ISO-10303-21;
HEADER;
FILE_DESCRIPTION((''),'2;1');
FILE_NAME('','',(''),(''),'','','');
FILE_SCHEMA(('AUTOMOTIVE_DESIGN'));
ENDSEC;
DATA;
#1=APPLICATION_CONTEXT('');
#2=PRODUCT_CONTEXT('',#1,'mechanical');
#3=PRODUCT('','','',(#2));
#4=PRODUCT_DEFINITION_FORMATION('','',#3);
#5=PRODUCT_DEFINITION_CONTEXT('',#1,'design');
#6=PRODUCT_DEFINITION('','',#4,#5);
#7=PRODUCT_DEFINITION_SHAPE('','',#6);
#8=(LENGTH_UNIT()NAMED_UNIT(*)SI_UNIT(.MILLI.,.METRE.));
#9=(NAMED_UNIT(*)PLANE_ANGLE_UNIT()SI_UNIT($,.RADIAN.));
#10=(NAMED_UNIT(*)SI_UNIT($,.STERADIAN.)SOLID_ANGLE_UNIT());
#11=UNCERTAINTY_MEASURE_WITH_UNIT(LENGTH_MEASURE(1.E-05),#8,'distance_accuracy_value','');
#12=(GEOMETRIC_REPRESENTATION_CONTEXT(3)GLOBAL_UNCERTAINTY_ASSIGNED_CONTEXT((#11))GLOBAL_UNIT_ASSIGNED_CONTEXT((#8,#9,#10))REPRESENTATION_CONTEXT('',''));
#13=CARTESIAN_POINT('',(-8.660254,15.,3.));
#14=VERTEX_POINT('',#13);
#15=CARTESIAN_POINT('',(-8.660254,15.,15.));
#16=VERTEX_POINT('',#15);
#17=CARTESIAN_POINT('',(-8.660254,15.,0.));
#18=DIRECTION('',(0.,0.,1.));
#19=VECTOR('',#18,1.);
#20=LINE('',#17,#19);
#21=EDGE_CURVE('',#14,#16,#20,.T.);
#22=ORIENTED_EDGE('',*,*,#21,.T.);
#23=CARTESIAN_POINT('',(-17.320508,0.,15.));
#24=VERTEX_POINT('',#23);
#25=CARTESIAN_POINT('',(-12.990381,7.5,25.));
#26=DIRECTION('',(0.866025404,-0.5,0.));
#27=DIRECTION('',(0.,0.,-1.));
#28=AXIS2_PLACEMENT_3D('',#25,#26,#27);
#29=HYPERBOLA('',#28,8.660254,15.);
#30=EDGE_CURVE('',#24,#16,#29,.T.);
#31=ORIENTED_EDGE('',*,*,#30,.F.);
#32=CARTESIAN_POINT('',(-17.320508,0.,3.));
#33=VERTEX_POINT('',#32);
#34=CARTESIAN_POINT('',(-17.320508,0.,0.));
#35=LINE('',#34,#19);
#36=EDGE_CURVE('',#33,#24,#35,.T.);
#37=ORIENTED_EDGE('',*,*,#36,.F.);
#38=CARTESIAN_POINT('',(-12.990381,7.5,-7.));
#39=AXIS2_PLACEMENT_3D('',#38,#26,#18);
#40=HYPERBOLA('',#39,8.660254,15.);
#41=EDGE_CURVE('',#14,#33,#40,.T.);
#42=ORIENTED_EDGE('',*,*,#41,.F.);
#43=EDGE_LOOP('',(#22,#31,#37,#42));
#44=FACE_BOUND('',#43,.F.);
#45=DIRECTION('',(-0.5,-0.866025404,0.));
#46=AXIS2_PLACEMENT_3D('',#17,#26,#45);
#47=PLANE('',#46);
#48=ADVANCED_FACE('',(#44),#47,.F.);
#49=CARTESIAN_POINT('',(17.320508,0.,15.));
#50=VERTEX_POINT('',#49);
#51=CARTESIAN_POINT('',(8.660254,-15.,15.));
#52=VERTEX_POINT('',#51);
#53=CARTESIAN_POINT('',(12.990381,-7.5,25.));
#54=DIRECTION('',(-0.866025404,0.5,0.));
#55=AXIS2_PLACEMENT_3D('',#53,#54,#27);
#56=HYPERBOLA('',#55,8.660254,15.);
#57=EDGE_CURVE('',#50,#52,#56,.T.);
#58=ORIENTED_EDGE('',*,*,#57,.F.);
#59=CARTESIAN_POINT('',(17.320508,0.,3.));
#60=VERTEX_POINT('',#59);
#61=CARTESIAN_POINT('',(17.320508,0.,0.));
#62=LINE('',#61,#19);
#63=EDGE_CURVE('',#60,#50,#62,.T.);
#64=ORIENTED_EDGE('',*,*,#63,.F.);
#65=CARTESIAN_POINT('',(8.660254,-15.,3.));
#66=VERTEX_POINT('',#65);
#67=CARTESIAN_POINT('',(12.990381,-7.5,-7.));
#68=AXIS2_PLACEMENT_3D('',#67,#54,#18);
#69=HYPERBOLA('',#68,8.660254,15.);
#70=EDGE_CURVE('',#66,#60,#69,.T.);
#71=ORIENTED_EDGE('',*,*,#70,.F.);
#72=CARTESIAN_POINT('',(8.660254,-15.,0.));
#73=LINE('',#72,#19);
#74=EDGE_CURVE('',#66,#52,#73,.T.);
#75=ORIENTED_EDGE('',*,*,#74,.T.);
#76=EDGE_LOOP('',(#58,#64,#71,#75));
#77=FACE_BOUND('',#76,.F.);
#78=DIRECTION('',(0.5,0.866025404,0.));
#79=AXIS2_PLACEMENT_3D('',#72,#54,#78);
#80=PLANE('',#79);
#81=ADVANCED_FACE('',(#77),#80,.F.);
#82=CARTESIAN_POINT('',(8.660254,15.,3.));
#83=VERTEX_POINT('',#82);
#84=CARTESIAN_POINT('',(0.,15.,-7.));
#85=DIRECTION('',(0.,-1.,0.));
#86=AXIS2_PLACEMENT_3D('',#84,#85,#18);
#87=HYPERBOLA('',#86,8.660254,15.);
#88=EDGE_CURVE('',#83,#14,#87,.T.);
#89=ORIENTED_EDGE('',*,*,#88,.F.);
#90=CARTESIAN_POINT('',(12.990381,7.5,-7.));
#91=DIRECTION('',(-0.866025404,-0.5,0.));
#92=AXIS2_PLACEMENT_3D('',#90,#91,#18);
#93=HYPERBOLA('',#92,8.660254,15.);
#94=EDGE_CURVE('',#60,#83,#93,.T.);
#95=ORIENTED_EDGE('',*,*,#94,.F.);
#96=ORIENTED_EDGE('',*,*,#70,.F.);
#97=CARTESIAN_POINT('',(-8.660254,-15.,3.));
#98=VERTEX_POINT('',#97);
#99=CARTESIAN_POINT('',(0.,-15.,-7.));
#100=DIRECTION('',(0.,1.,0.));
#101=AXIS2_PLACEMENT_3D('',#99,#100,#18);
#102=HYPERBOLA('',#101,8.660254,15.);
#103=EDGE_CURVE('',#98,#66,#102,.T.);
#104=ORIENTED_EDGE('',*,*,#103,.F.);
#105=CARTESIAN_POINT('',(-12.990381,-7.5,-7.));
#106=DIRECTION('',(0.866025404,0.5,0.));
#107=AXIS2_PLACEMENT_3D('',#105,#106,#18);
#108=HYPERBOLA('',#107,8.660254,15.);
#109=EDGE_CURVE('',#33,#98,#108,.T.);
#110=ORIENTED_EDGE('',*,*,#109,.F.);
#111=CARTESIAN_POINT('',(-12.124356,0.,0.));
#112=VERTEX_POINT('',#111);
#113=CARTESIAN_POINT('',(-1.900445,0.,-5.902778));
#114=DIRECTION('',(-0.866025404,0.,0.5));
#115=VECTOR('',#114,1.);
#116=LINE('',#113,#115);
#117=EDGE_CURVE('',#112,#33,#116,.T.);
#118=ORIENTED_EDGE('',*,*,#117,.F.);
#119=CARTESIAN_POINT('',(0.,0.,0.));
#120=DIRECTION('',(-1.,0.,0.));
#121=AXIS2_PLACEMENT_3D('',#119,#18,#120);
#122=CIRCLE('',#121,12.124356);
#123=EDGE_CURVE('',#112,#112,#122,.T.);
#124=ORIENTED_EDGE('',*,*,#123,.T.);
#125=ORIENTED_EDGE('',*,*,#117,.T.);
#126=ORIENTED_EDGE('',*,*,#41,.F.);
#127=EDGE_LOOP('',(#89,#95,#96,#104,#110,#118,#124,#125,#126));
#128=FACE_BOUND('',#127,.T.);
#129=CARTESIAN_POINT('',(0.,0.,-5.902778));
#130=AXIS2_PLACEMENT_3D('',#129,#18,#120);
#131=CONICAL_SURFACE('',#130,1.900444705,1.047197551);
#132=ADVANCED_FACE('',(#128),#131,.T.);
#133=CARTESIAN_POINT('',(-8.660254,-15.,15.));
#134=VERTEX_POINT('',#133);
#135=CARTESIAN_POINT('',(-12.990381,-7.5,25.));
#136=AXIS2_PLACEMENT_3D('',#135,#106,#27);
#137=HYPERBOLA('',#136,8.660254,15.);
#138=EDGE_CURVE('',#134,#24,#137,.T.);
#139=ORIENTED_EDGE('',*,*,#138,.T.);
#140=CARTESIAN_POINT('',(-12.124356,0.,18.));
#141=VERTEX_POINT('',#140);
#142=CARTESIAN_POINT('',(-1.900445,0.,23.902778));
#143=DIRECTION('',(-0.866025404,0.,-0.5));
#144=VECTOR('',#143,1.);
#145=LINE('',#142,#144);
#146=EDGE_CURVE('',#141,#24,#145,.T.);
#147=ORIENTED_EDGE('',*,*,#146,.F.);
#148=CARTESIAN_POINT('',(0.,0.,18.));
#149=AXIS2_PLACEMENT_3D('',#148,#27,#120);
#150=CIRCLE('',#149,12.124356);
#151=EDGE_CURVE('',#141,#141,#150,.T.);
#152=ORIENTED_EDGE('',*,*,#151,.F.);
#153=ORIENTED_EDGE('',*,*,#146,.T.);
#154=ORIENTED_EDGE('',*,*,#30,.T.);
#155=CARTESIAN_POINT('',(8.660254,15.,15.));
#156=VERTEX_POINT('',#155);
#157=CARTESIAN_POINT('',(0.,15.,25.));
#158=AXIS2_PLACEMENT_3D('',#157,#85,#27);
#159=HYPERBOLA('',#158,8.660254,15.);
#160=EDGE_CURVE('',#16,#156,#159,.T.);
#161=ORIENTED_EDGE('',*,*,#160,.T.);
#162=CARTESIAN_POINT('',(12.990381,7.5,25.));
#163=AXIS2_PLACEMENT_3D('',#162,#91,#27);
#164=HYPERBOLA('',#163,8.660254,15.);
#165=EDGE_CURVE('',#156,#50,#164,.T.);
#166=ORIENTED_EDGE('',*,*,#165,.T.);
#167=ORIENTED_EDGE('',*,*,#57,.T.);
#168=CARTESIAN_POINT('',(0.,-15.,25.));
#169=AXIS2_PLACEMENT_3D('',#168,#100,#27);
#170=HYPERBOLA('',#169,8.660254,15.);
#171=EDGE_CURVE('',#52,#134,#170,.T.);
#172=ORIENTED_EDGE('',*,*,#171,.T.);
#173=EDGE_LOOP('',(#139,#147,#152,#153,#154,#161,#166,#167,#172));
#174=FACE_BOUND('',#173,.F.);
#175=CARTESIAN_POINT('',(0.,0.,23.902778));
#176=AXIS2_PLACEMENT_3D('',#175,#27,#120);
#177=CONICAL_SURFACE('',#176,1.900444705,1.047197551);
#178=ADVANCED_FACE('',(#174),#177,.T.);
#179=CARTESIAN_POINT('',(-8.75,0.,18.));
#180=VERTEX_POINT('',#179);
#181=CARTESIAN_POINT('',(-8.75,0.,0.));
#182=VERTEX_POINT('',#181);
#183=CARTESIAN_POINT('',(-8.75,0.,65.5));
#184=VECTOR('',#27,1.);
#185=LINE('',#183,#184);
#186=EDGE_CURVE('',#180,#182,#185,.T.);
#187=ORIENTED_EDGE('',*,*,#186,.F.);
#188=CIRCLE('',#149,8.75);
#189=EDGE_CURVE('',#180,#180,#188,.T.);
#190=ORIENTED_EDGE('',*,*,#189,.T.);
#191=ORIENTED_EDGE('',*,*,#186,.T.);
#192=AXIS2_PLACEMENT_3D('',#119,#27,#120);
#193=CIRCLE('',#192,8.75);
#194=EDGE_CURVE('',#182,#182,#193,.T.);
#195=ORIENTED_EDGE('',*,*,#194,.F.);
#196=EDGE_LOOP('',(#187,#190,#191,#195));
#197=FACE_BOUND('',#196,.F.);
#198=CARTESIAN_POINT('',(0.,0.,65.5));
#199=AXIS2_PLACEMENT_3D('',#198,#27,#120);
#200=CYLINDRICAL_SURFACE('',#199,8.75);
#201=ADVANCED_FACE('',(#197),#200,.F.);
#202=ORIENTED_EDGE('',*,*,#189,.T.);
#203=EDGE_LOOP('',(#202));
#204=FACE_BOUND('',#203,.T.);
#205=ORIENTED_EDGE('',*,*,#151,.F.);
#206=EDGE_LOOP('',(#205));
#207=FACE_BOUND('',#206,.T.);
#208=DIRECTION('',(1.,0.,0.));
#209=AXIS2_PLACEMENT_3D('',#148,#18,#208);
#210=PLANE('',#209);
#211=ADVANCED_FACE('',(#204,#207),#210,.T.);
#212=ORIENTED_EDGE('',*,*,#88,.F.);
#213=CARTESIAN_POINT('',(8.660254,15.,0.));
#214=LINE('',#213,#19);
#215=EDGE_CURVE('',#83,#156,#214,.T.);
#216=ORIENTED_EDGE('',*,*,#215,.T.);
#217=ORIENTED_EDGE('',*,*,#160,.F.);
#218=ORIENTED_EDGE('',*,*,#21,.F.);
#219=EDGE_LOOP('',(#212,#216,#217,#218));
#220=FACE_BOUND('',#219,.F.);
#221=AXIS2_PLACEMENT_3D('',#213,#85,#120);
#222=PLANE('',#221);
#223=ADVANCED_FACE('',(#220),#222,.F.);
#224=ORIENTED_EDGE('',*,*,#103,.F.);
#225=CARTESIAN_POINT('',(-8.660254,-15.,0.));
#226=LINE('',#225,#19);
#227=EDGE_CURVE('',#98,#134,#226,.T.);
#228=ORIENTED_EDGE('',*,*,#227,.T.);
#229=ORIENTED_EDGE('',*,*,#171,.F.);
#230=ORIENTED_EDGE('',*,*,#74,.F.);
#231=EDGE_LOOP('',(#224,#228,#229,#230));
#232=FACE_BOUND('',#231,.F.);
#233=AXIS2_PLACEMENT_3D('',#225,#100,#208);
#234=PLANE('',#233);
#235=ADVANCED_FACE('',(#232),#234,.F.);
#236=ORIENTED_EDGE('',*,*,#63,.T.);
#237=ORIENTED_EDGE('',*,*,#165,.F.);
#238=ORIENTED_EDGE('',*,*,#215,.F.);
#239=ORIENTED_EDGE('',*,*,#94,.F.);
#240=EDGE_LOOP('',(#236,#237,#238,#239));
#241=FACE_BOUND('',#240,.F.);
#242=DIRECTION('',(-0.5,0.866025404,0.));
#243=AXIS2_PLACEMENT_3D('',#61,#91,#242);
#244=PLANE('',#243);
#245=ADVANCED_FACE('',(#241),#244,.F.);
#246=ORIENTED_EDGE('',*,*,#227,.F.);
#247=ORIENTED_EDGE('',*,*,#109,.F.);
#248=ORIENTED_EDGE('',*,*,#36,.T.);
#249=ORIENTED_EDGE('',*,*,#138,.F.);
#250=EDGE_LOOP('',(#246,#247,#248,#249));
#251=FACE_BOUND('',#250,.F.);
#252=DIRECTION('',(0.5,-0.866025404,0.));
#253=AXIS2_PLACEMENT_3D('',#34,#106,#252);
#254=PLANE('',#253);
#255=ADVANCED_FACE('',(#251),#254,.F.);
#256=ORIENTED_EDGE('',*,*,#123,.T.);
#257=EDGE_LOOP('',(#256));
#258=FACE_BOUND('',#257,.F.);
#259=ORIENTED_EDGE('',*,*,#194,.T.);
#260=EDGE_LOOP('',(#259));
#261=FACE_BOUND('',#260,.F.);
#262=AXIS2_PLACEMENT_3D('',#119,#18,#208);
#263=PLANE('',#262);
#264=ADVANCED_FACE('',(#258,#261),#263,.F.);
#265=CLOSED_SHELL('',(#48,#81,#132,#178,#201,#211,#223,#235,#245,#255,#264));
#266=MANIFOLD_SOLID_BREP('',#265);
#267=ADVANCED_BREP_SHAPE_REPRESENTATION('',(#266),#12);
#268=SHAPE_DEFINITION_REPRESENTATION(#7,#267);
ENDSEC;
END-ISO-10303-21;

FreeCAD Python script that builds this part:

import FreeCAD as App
import Part
import Sketcher
Q = App.Units.Quantity

doc = App.newDocument("Part")
body = doc.addObject("PartDesign::Body", "Body")

sketch1 = doc.addObject("Sketcher::SketchObject", "Sketch")
body.addObject(sketch1)
sketch1.AttachmentSupport = (doc.XY_Plane, [""])
sketch1.MapMode = "FlatFace"
sketch1.addGeometry(Part.LineSegment(App.Vector(17, 0, 0), App.Vector(9, 15, 0)), False)
sketch1.addGeometry(Part.LineSegment(App.Vector(9, 15, 0), App.Vector(-9, 15, 0)), False)
sketch1.addGeometry(Part.LineSegment(App.Vector(-9, 15, 0), App.Vector(-17, 0, 0)), False)
sketch1.addGeometry(Part.LineSegment(App.Vector(-17, 0, 0), App.Vector(-9, -15, 0)), False)
sketch1.addGeometry(Part.LineSegment(App.Vector(-9, -15, 0), App.Vector(9, -15, 0)), False)
sketch1.addGeometry(Part.LineSegment(App.Vector(9, -15, 0), App.Vector(17, 0, 0)), False)
sketch1.addConstraint(Sketcher.Constraint("Coincident", 0, 2, 1, 1))
sketch1.addConstraint(Sketcher.Constraint("Coincident", 1, 2, 2, 1))
sketch1.addConstraint(Sketcher.Constraint("Coincident", 2, 2, 3, 1))
sketch1.addConstraint(Sketcher.Constraint("Coincident", 3, 2, 4, 1))
sketch1.addConstraint(Sketcher.Constraint("Coincident", 4, 2, 5, 1))
sketch1.addConstraint(Sketcher.Constraint("Coincident", 5, 2, 0, 1))
sketch1.addConstraint(Sketcher.Constraint("Horizontal", 1))
sketch1.addConstraint(Sketcher.Constraint("Horizontal", 4))
sketch1.addConstraint(Sketcher.Constraint("Symmetric", 0, 2, 3, 2, -1, 1))
sketch1.addConstraint(Sketcher.Constraint("Symmetric", 2, 2, 5, 2, -1, 1))
sketch1.addConstraint(Sketcher.Constraint("PointOnObject", 2, 2, -1))
sketch1.addConstraint(Sketcher.Constraint("Parallel", 2, 5))
sketch1.addConstraint(Sketcher.Constraint("Vertical", 1, 2, 3, 2))
sketch1.addConstraint(Sketcher.Constraint("Angle", 0, Q("120 deg")))
sketch1.addConstraint(Sketcher.Constraint("DistanceY", -1, 1, 0, 2, 15.0))
sketch1.addConstraint(Sketcher.Constraint("DistanceX", 1, 2, 1, 1, 17.320508))
pad1 = doc.addObject("PartDesign::Pad", "Pad")
body.addObject(pad1)
pad1.Profile = sketch1
pad1.Length = 18

sketch2 = doc.addObject("Sketcher::SketchObject", "Sketch001")
body.addObject(sketch2)
sketch2.AttachmentSupport = (doc.XZ_Plane, [""])
sketch2.MapMode = "FlatFace"
sketch2.addGeometry(Part.LineSegment(App.Vector(2, -6, 0), App.Vector(17, 3, 0)), False)
sketch2.addGeometry(Part.LineSegment(App.Vector(17, 3, 0), App.Vector(20, -2, 0)), False)
sketch2.addGeometry(Part.LineSegment(App.Vector(20, -2, 0), App.Vector(2, -6, 0)), False)
sketch2.addGeometry(Part.LineSegment(App.Vector(20, 20, 0), App.Vector(17, 15, 0)), False)
sketch2.addGeometry(Part.LineSegment(App.Vector(17, 15, 0), App.Vector(2, 24, 0)), False)
sketch2.addGeometry(Part.LineSegment(App.Vector(2, 24, 0), App.Vector(20, 20, 0)), False)
sketch2.addConstraint(Sketcher.Constraint("Coincident", 0, 2, 1, 1))
sketch2.addConstraint(Sketcher.Constraint("Coincident", 1, 2, 2, 1))
sketch2.addConstraint(Sketcher.Constraint("Coincident", 2, 2, 0, 1))
sketch2.addConstraint(Sketcher.Constraint("Coincident", 3, 2, 4, 1))
sketch2.addConstraint(Sketcher.Constraint("Coincident", 4, 2, 5, 1))
sketch2.addConstraint(Sketcher.Constraint("Coincident", 5, 2, 3, 1))
sketch2.addConstraint(Sketcher.Constraint("Perpendicular", 0, 1))
sketch2.addConstraint(Sketcher.Constraint("Perpendicular", 3, 4))
sketch2.addConstraint(Sketcher.Constraint("Vertical", 0, 2, 3, 2))
sketch2.addConstraint(Sketcher.Constraint("Vertical", 2, 2, 4, 2))
sketch2.addConstraint(Sketcher.Constraint("Vertical", 1, 2, 5, 2))
sketch2.addConstraint(Sketcher.Constraint("Equal", 1, 3))
sketch2.addConstraint(Sketcher.Constraint("Angle", 0, Q("30 deg")))
sketch2.addConstraint(Sketcher.Constraint("DistanceY", -1, 1, 0, 2, 3.0))
sketch2.addConstraint(Sketcher.Constraint("DistanceY", -1, 1, 3, 2, 15.0))
sketch2.addConstraint(Sketcher.Constraint("DistanceX", -1, 1, 0, 2, 17.320508))
sketch2.addConstraint(Sketcher.Constraint("DistanceX", -1, 1, 1, 2, 20.281012))
sketch2.addConstraint(Sketcher.Constraint("DistanceY", 1, 2, 4, 2, 26.030521))
groove = doc.addObject("PartDesign::Groove", "Groove")
body.addObject(groove)
groove.Profile = sketch2
groove.ReferenceAxis = (sketch2, ["V_Axis"])
groove.Angle = 360

sketch3 = doc.addObject("Sketcher::SketchObject", "Sketch002")
body.addObject(sketch3)
sketch3.AttachmentSupport = (doc.XY_Plane, [""])
sketch3.MapMode = "FlatFace"
sketch3.AttachmentOffset = App.Placement(App.Vector(0, 0, 18), App.Rotation())
sketch3.addGeometry(Part.Circle(App.Vector(0, 0, 0), App.Vector(0, 0, 1), 9), False)
sketch3.addConstraint(Sketcher.Constraint("Coincident", 0, 3, -1, 1))
sketch3.addConstraint(Sketcher.Constraint("Diameter", 0, 17.5))
doc.recompute()
hole = doc.addObject("PartDesign::Hole", "Hole")
body.addObject(hole)
hole.Profile = sketch3
hole.ThreadType = "None"
hole.Diameter = 17.5
hole.DepthType = "Dimension"
hole.Depth = 47.5
hole.DrillPoint = "Angled"
hole.DrillPointAngle = 118

doc.recompute()
